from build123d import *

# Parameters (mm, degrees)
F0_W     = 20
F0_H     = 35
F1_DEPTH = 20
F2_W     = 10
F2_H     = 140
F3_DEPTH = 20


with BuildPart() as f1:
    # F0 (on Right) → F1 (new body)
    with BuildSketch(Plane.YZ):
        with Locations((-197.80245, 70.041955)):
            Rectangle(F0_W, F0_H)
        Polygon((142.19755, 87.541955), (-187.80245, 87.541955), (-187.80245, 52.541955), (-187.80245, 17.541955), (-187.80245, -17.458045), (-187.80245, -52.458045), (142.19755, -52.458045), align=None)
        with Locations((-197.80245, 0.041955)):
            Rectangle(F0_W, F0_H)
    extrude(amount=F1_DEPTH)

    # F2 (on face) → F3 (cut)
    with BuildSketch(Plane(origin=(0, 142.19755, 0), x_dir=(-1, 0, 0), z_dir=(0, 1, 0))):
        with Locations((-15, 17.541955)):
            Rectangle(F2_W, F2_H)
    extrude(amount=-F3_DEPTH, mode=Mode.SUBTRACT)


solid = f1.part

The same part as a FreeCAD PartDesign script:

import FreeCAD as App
import Part
import Sketcher


def add_polygon(sketch, points):
    """Adds a closed chain of lines whose ends are joined by coincident constraints."""
    first, n = sketch.GeometryCount, len(points)
    for a, b in zip(points, points[1:] + points[:1]):
        sketch.addGeometry(Part.LineSegment(App.Vector(*a, 0), App.Vector(*b, 0)), False)
    for i in range(n):
        sketch.addConstraint(Sketcher.Constraint("Coincident", first + i, 2, first + (i + 1) % n, 1))

doc = App.newDocument("Part")
body = doc.addObject("PartDesign::Body", "Body")

# Sketch on YZ plane
sketch1 = doc.addObject("Sketcher::SketchObject", "Sketch")
body.addObject(sketch1)
sketch1.AttachmentSupport = (doc.YZ_Plane, [""])
sketch1.MapMode = "FlatFace"
add_polygon(sketch1, [(-208, 88), (-208, 53), (-188, 53), (-188, 18), (-208, 18), (-208, -17), (-188, -17), (-188, -52), (142, -52), (142, 88)])  # lines 0-9
sketch1.addConstraint([
    Sketcher.Constraint("Vertical", 0),
    Sketcher.Constraint("Horizontal", 1),
    Sketcher.Constraint("Vertical", 2),
    Sketcher.Constraint("Horizontal", 3),
    Sketcher.Constraint("Vertical", 4),
    Sketcher.Constraint("Horizontal", 5),
    Sketcher.Constraint("Vertical", 6),
    Sketcher.Constraint("Horizontal", 7),
    Sketcher.Constraint("Vertical", 8),
    Sketcher.Constraint("Horizontal", 9),
    Sketcher.Constraint("Vertical", 0, 2, 3, 2),
    Sketcher.Constraint("Vertical", 2, 2, 5, 2),
    Sketcher.Constraint("Equal", 0, 2),
    Sketcher.Constraint("Equal", 2, 4),
    Sketcher.Constraint("Equal", 4, 6),
    Sketcher.Constraint("DistanceX", 1, 1, 1, 2, 20.0),
    Sketcher.Constraint("DistanceX", 7, 1, 7, 2, 330.0),
    Sketcher.Constraint("DistanceY", 0, 2, 0, 1, 35.0),
    Sketcher.Constraint("DistanceX", 0, 2, -1, 1, 207.80245),
    Sketcher.Constraint("DistanceY", -1, 1, 0, 2, 52.541955),
])
pad1 = doc.addObject("PartDesign::Pad", "Pad")
body.addObject(pad1)
pad1.Profile = sketch1
pad1.Length = 20

# Sketch on XZ plane
sketch2 = doc.addObject("Sketcher::SketchObject", "Sketch001")
body.addObject(sketch2)
sketch2.AttachmentSupport = (doc.XZ_Plane, [""])
sketch2.MapMode = "FlatFace"
sketch2.AttachmentOffset = App.Placement(App.Vector(0, 0, -142.19755), App.Rotation())
add_polygon(sketch2, [(20, 88), (20, -52), (10, -52), (10, 88)])  # lines 0-3
sketch2.addConstraint([
    Sketcher.Constraint("Vertical", 0),
    Sketcher.Constraint("Horizontal", 1),
    Sketcher.Constraint("Vertical", 2),
    Sketcher.Constraint("Horizontal", 3),
    Sketcher.Constraint("DistanceX", 1, 2, 1, 1, 10.0),
    Sketcher.Constraint("DistanceY", 0, 2, 0, 1, 140.0),
    Sketcher.Constraint("DistanceX", -1, 1, 0, 2, 20.0),
    Sketcher.Constraint("DistanceY", 0, 2, -1, 1, 52.458045),
])
pocket1 = doc.addObject("PartDesign::Pocket", "Pocket")
body.addObject(pocket1)
pocket1.Profile = sketch2
pocket1.Length = 20
pocket1.Reversed = True

doc.recompute()
